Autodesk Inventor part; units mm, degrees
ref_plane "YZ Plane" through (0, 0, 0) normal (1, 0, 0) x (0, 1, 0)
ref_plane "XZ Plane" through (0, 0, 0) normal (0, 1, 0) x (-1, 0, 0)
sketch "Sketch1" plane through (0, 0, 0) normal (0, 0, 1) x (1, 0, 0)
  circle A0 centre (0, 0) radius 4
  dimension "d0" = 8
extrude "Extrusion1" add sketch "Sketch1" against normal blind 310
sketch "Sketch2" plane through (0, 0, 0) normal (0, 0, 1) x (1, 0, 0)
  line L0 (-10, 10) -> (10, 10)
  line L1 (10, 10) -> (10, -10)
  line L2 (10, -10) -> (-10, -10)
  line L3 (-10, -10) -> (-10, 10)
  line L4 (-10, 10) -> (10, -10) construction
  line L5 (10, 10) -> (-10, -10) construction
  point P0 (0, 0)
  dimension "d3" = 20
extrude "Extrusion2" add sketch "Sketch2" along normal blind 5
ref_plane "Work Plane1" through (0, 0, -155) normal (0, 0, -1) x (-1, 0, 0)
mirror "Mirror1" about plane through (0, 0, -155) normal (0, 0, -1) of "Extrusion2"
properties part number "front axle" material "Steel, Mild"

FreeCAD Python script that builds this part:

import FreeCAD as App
import Part
import Sketcher

V = App.Vector
Q = App.Units.Quantity

doc = App.newDocument("Part")
body = doc.addObject("PartDesign::Body", "Body")

# Sketch on XY plane
sketch1 = body.newObject("Sketcher::SketchObject", "Sketch")
sketch1.AttachmentSupport = (doc.getObject("XY_Plane"), [""])
sketch1.MapMode = "FlatFace"
sketch1.addGeometry(Part.Circle(V(0, 0, 0), V(0, 0, 1), 4), False)
sketch1.addConstraint(Sketcher.Constraint("Coincident", 0, 3, -1, 1))
sketch1.addConstraint(Sketcher.Constraint("Diameter", 0, Q("8 mm")))
pad1 = body.newObject("PartDesign::Pad", "Pad")
pad1.Profile = sketch1
pad1.Length = 310
pad1.Reversed = True

# Sketch on XY plane
sketch2 = body.newObject("Sketcher::SketchObject", "Sketch001")
sketch2.AttachmentSupport = (doc.getObject("XY_Plane"), [""])
sketch2.MapMode = "FlatFace"
sketch2.addGeometry(Part.LineSegment(V(10, 10, 0), V(-10, 10, 0)), False)
sketch2.addGeometry(Part.LineSegment(V(-10, 10, 0), V(-10, -10, 0)), False)
sketch2.addGeometry(Part.LineSegment(V(-10, -10, 0), V(10, -10, 0)), False)
sketch2.addGeometry(Part.LineSegment(V(10, -10, 0), V(10, 10, 0)), False)
sketch2.addConstraint(Sketcher.Constraint("Coincident", 0, 2, 1, 1))
sketch2.addConstraint(Sketcher.Constraint("Coincident", 1, 2, 2, 1))
sketch2.addConstraint(Sketcher.Constraint("Coincident", 2, 2, 3, 1))
sketch2.addConstraint(Sketcher.Constraint("Coincident", 3, 2, 0, 1))
sketch2.addConstraint(Sketcher.Constraint("Horizontal", 0))
sketch2.addConstraint(Sketcher.Constraint("Vertical", 1))
sketch2.addConstraint(Sketcher.Constraint("Horizontal", 2))
sketch2.addConstraint(Sketcher.Constraint("Vertical", 3))
sketch2.addConstraint(Sketcher.Constraint("Symmetric", 0, 2, 2, 2, -1, 1))
sketch2.addConstraint(Sketcher.Constraint("Equal", 2, 1))
sketch2.addConstraint(Sketcher.Constraint("DistanceX", 0, 2, 0, 1, Q("20 mm")))
pad2 = body.newObject("PartDesign::Pad", "Pad001")
pad2.Profile = sketch2
pad2.Length = 5
doc.recompute()

datumplane = body.newObject("PartDesign::Plane", "DatumPlane")
datumplane.AttachmentSupport = (doc.getObject("XY_Plane"), [""])
datumplane.MapMode = "FlatFace"
datumplane.AttachmentOffset = App.Placement(V(0, 0, -155), App.Rotation())
mirrored = body.newObject("PartDesign::Mirrored", "Mirrored")
mirrored.Originals = [pad2]
mirrored.MirrorPlane = (datumplane, [""])
body.Tip = mirrored

doc.recompute()
